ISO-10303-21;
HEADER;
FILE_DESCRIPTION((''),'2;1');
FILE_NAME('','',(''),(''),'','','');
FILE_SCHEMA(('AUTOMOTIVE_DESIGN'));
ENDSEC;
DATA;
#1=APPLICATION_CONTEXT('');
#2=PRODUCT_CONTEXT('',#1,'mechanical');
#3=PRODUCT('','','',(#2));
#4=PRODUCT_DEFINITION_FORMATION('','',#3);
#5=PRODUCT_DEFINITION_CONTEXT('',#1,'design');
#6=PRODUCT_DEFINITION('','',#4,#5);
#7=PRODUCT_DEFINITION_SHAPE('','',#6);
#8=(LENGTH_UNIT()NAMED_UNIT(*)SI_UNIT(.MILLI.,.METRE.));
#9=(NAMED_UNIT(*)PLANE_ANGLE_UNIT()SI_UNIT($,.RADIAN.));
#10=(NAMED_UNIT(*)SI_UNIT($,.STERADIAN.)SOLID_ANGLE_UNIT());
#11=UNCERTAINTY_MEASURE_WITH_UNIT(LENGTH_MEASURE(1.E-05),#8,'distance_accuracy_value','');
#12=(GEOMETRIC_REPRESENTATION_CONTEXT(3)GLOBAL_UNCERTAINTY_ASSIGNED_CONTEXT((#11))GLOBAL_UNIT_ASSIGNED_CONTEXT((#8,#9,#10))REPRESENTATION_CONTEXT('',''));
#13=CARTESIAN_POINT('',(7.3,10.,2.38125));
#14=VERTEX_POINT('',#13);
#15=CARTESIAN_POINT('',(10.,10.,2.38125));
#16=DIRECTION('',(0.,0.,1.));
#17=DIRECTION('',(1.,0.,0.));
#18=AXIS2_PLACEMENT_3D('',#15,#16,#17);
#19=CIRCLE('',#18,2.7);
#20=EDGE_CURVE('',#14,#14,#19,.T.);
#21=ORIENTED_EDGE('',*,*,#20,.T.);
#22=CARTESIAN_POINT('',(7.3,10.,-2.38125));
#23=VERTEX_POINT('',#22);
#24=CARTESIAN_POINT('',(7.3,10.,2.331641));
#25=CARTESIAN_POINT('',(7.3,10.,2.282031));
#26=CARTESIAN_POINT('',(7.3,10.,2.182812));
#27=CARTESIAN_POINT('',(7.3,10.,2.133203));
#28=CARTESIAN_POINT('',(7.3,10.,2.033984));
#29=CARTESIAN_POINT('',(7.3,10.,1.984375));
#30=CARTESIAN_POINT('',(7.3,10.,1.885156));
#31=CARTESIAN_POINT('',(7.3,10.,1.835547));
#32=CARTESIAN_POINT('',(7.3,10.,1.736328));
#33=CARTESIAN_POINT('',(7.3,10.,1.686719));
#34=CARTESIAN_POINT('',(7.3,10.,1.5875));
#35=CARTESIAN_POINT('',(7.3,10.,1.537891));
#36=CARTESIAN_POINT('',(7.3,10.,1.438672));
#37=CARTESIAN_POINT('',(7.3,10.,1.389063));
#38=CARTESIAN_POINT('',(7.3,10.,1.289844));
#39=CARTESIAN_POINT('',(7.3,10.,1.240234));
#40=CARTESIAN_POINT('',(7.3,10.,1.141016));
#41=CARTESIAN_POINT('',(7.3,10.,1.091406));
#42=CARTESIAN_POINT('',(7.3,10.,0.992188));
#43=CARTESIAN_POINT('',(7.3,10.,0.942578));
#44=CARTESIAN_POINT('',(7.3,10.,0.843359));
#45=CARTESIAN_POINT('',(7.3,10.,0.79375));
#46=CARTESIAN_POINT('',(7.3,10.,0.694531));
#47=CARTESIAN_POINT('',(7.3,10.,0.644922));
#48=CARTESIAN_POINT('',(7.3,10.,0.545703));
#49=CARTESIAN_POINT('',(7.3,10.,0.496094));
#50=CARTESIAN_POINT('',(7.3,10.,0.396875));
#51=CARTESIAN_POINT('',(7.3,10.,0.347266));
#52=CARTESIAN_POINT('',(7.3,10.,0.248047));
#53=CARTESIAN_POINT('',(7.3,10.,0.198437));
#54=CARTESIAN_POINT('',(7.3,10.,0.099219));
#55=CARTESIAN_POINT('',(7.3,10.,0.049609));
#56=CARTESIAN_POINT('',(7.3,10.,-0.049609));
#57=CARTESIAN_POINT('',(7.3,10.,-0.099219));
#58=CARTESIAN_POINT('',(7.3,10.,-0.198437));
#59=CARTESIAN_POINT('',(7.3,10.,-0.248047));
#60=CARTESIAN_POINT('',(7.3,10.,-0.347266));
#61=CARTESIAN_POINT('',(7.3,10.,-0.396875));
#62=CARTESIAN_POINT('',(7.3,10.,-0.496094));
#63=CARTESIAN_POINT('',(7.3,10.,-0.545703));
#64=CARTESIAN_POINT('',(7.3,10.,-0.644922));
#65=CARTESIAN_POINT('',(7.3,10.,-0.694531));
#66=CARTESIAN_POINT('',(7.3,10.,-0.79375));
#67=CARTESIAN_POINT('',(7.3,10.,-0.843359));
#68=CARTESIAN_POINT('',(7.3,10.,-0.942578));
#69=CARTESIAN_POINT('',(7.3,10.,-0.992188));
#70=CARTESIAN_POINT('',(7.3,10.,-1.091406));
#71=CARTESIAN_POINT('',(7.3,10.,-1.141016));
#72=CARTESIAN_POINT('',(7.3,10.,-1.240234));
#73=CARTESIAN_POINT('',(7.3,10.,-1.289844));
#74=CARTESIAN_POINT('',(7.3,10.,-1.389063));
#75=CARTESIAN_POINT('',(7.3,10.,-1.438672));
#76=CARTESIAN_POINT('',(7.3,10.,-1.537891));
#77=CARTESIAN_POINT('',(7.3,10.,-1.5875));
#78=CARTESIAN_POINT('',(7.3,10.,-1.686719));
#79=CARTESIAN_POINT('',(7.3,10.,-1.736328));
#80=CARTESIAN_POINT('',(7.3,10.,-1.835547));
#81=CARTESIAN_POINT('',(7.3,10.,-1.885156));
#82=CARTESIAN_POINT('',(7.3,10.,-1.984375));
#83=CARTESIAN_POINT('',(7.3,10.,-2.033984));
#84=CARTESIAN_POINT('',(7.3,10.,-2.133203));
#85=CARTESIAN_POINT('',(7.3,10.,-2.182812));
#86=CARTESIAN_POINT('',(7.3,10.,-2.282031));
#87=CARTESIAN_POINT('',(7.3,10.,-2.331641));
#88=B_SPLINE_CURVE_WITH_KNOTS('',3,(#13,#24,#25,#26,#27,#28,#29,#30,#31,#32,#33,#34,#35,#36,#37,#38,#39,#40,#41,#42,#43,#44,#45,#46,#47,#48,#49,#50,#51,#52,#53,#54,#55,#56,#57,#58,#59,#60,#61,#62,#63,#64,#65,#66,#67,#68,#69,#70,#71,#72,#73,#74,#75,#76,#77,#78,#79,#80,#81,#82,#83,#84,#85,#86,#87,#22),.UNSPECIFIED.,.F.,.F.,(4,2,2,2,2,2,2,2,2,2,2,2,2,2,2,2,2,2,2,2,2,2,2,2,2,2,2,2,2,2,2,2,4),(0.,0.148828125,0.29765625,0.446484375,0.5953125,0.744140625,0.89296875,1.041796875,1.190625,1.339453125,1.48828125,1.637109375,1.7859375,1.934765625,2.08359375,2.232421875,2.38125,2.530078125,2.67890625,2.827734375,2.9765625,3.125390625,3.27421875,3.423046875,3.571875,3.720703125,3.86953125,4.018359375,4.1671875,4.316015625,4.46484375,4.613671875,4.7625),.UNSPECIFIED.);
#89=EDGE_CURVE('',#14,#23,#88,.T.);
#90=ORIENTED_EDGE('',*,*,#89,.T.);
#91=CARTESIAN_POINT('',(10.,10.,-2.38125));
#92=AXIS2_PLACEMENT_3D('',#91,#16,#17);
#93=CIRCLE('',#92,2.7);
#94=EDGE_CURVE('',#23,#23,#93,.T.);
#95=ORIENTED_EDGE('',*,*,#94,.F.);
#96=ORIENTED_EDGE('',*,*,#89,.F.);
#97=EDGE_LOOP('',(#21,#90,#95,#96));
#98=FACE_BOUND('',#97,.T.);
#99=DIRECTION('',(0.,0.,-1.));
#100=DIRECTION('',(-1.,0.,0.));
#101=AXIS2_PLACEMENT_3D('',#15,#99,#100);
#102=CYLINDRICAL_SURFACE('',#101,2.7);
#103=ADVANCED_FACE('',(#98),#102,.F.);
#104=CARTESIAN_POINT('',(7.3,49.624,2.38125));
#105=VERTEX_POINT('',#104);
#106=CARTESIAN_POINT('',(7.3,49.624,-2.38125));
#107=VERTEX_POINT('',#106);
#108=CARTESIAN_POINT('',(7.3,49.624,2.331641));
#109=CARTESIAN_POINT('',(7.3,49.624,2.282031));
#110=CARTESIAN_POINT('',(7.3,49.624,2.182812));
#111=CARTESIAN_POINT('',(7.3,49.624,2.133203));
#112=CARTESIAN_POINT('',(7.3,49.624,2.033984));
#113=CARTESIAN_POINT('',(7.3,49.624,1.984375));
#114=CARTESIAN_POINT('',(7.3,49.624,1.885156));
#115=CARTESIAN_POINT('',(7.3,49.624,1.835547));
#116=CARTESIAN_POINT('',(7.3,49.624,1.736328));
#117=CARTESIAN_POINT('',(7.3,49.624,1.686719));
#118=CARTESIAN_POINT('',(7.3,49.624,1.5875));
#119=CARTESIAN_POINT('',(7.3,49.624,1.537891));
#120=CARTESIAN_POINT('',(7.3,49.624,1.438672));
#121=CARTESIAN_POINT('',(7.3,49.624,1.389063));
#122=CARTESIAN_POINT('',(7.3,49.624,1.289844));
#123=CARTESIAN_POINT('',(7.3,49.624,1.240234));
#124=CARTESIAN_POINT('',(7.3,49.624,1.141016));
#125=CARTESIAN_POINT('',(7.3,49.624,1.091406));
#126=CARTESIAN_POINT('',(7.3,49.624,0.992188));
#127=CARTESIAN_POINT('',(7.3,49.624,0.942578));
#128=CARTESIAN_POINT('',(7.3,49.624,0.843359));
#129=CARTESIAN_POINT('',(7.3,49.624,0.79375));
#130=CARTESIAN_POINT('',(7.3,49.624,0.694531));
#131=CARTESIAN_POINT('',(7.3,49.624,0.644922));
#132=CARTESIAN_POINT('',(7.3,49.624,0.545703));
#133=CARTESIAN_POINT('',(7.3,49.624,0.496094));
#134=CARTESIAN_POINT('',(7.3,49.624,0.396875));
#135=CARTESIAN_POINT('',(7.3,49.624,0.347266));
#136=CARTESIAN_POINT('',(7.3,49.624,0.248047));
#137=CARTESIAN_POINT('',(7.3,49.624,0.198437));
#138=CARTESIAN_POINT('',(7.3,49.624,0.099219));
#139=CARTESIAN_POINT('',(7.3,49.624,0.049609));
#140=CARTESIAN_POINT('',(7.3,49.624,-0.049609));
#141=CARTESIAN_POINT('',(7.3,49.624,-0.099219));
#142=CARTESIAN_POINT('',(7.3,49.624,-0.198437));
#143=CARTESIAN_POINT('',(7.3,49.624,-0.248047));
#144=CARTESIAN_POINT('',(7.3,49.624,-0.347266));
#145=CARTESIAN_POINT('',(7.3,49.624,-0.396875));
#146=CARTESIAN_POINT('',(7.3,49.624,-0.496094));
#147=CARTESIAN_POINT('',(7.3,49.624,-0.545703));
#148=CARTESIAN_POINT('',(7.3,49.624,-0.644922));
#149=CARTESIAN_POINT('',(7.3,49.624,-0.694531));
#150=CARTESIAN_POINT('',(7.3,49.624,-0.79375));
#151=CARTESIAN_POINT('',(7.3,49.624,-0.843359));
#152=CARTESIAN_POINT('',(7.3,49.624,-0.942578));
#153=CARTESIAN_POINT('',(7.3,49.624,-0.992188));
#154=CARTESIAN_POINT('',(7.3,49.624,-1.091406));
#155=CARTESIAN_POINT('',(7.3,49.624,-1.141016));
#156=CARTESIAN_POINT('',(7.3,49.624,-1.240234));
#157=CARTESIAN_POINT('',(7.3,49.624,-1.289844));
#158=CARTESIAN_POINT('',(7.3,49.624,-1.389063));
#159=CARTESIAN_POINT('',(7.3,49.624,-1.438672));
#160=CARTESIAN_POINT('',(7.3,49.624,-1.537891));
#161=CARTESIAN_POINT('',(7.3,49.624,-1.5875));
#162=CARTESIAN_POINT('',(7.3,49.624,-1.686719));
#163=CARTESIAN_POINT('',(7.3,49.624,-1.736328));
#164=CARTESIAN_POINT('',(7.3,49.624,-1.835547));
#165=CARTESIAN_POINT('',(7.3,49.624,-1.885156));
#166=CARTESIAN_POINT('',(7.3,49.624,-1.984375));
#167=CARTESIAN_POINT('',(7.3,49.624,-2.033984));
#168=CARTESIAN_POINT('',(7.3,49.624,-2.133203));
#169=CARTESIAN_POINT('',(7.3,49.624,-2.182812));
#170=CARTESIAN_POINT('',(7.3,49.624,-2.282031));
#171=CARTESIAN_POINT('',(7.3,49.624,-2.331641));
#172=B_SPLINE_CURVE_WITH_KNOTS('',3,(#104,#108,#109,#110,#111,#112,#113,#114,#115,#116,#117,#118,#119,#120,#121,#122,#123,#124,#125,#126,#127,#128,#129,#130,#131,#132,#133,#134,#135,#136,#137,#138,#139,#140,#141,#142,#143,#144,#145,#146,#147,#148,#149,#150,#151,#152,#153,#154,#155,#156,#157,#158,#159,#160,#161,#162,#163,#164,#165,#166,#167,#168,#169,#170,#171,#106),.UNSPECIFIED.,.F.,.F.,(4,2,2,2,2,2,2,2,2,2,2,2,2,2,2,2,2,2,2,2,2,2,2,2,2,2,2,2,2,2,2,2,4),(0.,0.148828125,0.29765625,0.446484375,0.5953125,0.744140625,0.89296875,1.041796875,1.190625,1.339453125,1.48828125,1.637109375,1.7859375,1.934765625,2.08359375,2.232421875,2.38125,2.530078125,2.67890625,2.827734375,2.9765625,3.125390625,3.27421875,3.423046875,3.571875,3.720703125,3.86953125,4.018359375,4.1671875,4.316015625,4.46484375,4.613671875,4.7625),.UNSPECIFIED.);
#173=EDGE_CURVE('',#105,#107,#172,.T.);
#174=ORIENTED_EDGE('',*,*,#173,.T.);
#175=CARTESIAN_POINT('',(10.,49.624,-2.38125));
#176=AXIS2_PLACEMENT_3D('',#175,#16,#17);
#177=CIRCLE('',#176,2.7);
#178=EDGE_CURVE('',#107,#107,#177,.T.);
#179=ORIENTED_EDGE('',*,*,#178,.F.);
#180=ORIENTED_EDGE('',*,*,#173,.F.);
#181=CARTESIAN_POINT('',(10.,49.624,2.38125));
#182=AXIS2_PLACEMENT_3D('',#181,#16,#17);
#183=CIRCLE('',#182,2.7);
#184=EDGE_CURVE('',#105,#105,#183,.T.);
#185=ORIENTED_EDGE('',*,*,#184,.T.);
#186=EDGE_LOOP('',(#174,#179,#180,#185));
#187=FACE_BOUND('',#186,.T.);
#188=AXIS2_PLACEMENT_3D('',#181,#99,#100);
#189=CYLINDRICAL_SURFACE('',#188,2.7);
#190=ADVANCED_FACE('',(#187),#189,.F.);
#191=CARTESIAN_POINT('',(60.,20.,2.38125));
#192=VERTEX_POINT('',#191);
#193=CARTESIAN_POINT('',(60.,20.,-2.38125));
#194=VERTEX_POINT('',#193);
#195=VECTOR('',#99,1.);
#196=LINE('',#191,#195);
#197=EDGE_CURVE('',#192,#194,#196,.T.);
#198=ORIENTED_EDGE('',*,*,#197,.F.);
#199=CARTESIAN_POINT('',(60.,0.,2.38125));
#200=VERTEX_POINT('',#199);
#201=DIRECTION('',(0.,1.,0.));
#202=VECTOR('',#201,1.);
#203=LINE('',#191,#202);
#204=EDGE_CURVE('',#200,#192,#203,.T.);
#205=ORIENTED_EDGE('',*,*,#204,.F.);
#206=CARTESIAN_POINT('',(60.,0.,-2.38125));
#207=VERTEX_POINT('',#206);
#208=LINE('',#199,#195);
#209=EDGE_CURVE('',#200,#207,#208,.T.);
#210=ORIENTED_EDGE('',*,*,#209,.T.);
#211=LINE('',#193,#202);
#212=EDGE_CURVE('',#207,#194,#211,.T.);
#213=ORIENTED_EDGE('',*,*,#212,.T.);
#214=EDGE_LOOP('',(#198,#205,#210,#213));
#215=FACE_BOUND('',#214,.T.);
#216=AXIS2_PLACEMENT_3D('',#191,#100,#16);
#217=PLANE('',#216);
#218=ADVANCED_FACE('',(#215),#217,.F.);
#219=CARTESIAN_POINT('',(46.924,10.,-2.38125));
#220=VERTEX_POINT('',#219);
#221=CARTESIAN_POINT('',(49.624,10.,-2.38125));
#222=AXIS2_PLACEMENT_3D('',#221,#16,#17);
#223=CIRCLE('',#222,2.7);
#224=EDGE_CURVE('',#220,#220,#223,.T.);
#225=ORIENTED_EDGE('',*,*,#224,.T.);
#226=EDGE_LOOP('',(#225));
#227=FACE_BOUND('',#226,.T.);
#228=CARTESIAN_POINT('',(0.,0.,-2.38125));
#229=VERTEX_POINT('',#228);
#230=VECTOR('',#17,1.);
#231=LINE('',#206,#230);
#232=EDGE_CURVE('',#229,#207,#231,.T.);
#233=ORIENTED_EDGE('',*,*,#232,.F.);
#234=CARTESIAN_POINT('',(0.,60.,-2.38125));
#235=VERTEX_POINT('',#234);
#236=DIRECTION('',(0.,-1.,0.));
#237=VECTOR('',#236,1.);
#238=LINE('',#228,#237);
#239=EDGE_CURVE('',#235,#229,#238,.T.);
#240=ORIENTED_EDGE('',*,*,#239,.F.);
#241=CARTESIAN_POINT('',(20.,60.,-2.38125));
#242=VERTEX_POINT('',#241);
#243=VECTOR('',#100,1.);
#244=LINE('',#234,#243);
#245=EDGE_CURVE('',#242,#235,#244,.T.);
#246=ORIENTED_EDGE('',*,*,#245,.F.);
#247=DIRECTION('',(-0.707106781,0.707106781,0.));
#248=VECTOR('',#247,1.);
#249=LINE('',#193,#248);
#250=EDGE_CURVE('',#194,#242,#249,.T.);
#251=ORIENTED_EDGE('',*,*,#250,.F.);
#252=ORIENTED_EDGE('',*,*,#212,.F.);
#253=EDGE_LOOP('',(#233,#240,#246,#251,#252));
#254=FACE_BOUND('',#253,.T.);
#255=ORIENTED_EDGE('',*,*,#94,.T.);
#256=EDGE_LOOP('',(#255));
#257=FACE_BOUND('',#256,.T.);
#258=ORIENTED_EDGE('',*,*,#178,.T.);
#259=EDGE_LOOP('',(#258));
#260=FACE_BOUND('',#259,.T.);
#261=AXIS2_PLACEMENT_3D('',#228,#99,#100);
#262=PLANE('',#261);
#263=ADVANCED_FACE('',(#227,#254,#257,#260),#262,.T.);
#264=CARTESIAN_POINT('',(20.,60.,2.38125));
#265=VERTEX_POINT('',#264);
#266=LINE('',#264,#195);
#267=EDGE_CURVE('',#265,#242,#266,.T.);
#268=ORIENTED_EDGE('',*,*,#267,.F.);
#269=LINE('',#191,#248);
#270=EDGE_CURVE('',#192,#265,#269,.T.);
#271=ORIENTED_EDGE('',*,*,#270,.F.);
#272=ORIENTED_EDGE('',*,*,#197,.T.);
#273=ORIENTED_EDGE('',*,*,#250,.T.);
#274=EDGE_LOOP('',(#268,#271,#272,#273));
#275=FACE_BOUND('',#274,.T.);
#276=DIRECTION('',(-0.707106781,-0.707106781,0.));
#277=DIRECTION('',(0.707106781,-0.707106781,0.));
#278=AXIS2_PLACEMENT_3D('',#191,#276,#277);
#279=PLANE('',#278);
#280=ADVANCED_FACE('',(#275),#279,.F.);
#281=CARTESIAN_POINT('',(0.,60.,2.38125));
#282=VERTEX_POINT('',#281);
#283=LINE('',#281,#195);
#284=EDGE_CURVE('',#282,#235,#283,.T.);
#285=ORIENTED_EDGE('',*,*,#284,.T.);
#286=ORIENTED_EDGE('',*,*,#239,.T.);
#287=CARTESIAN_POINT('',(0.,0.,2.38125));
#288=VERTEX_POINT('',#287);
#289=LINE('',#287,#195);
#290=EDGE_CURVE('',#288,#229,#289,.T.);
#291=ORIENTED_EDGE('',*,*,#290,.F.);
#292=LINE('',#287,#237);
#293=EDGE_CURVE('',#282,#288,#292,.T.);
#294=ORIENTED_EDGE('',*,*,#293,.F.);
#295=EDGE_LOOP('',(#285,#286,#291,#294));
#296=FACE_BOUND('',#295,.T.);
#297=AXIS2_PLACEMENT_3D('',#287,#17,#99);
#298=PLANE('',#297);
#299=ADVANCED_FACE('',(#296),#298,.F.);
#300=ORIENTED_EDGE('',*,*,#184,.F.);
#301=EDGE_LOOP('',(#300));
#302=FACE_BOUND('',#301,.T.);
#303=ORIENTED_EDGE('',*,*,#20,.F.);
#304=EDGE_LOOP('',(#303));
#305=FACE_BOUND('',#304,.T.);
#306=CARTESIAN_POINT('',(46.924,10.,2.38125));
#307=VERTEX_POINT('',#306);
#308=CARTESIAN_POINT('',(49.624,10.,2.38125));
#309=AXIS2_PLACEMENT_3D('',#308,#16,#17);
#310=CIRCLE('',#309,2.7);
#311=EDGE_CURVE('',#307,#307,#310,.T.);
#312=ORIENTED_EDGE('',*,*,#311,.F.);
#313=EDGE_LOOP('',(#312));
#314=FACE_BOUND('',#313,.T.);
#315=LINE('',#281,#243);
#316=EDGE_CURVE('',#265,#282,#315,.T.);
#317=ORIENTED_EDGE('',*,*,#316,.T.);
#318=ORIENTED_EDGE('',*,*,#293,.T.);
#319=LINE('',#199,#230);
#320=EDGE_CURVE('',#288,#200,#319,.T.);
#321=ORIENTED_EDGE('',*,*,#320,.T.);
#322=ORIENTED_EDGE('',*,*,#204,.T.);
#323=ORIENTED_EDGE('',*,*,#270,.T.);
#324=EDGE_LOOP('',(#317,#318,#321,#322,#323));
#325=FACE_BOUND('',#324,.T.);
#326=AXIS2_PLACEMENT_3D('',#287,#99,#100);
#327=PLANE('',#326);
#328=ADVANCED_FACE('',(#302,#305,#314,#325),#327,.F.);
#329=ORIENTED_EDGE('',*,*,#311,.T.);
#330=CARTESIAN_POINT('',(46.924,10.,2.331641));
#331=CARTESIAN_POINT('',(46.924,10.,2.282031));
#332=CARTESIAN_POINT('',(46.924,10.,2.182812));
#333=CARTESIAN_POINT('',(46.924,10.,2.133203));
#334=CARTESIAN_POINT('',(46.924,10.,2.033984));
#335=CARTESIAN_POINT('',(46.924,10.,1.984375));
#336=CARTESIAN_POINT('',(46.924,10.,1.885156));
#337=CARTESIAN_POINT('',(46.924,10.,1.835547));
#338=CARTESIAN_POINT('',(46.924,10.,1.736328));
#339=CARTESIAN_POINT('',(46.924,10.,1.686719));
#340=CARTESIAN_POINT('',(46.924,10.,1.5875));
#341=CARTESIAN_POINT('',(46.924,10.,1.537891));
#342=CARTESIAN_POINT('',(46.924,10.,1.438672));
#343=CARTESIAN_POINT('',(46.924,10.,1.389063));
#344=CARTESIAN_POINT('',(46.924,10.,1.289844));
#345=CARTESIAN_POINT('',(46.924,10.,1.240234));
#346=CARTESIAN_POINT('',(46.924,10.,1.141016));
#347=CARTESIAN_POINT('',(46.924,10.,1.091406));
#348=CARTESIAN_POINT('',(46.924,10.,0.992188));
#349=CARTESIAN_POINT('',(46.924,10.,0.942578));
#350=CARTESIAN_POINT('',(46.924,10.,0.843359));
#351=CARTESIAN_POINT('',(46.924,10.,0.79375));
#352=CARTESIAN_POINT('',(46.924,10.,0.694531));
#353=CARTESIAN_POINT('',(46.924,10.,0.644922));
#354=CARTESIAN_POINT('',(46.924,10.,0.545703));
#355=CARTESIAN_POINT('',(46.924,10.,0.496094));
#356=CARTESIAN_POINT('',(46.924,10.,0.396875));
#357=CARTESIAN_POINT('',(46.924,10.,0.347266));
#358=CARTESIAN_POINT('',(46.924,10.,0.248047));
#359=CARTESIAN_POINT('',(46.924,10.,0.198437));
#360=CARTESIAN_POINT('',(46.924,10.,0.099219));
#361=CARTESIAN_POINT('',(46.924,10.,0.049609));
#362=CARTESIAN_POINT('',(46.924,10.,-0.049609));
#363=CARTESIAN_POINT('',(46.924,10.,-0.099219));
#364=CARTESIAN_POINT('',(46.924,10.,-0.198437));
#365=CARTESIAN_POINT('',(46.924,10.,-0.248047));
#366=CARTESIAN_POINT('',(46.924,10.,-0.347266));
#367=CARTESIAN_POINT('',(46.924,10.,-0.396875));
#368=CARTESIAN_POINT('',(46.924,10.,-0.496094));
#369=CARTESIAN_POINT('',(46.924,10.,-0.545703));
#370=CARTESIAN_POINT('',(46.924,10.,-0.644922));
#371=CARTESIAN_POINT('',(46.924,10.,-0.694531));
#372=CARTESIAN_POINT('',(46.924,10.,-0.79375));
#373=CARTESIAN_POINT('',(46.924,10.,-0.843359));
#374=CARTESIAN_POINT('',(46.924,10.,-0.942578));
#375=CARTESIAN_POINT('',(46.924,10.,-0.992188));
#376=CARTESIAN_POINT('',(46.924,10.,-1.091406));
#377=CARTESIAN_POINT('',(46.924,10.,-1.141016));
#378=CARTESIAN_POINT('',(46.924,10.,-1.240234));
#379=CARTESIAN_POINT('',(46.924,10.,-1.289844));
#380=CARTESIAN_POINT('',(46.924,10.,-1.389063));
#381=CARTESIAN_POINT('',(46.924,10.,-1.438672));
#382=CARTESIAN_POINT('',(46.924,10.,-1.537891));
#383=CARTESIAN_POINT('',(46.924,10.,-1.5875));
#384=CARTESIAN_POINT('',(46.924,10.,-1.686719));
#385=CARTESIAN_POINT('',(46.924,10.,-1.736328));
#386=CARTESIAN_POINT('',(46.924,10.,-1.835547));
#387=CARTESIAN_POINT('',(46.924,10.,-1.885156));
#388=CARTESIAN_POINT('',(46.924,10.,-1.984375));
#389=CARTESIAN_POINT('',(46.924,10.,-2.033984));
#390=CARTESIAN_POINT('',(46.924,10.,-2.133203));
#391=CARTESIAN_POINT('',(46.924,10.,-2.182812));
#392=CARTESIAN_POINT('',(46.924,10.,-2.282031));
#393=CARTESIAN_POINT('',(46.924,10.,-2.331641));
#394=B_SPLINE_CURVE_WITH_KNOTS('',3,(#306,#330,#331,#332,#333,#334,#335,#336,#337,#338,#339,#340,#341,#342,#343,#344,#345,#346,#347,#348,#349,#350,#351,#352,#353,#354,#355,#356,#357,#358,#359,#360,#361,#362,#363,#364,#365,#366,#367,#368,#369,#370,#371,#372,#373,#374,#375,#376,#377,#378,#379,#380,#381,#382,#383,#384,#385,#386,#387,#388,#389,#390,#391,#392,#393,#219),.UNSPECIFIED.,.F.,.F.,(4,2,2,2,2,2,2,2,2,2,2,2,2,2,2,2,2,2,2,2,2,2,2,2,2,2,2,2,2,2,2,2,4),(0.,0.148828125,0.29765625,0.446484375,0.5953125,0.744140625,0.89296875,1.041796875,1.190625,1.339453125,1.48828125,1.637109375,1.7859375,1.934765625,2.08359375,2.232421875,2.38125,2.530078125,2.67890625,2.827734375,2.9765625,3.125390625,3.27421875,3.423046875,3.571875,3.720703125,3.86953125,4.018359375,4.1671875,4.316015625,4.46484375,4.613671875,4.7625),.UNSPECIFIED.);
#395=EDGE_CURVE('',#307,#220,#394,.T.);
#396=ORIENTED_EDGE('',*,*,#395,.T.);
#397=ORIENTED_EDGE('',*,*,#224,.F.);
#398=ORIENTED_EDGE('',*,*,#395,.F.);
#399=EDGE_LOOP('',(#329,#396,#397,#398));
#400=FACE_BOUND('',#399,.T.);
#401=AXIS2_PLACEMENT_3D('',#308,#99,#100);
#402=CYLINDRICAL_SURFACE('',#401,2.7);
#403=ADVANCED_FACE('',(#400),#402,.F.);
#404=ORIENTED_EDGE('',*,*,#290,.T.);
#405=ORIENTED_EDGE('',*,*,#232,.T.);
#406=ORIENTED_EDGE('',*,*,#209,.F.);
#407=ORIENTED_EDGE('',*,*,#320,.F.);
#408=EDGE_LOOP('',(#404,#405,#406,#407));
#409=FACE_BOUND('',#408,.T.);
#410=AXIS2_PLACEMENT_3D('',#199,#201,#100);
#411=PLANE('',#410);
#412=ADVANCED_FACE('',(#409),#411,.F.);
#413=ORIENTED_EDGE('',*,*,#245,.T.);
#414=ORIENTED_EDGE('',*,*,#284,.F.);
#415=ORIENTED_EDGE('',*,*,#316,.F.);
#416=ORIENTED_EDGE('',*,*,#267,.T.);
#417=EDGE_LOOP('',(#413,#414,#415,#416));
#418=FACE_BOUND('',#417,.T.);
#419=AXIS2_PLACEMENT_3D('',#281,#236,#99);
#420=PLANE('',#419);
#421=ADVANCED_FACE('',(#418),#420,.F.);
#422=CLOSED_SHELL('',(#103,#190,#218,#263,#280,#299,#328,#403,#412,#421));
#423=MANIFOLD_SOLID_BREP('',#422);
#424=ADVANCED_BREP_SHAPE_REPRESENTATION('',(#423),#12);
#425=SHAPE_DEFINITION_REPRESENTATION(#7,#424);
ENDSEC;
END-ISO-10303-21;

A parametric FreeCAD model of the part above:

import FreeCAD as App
import Part
import Sketcher
Q = App.Units.Quantity


def add_polygon(sketch, points):
    """Adds a closed chain of lines whose ends are joined by coincident constraints."""
    first, n = sketch.GeometryCount, len(points)
    for a, b in zip(points, points[1:] + points[:1]):
        sketch.addGeometry(Part.LineSegment(App.Vector(*a, 0), App.Vector(*b, 0)), False)
    for i in range(n):
        sketch.addConstraint(Sketcher.Constraint("Coincident", first + i, 2, first + (i + 1) % n, 1))

doc = App.newDocument("Part")
body = doc.addObject("PartDesign::Body", "Body")

# Sketch on XY plane
sketch1 = doc.addObject("Sketcher::SketchObject", "Sketch")
body.addObject(sketch1)
sketch1.AttachmentSupport = (doc.XY_Plane, [""])
sketch1.MapMode = "FlatFace"
add_polygon(sketch1, [(0, 60), (0, 0), (60, 0), (60, 20), (20, 60)])  # lines 0-4
sketch1.addGeometry(Part.Circle(App.Vector(49.6, 10, 0), App.Vector(0, 0, 1), 2.7), False)  # 5
sketch1.addGeometry(Part.Circle(App.Vector(10, 10, 0), App.Vector(0, 0, 1), 2.7), False)  # 6
sketch1.addGeometry(Part.Circle(App.Vector(10, 49.6, 0), App.Vector(0, 0, 1), 2.7), False)  # 7
sketch1.addConstraint([
    Sketcher.Constraint("Vertical", 0),
    Sketcher.Constraint("Horizontal", 1),
    Sketcher.Constraint("Vertical", 2),
    Sketcher.Constraint("Horizontal", 4),
    Sketcher.Constraint("Coincident", 0, 2, -1, 1),
    Sketcher.Constraint("Equal", 5, 6),
    Sketcher.Constraint("Equal", 6, 7),
    Sketcher.Constraint("Horizontal", 5, 3, 6, 3),
    Sketcher.Constraint("Vertical", 6, 3, 7, 3),
    Sketcher.Constraint("Equal", 1, 0),
    Sketcher.Constraint("Equal", 4, 2),
    Sketcher.Constraint("Diameter", 5, Q("5.4 mm")),
    Sketcher.Constraint("DistanceX", 1, 1, 1, 2, Q("60 mm")),
    Sketcher.Constraint("DistanceX", 4, 2, 4, 1, Q("20 mm")),
    Sketcher.Constraint("DistanceY", -1, 1, 5, 3, Q("10 mm")),
    Sketcher.Constraint("DistanceX", -1, 1, 6, 3, Q("10 mm")),
    Sketcher.Constraint("DistanceX", -1, 1, 5, 3, Q("49.624 mm")),
    Sketcher.Constraint("DistanceY", -1, 1, 7, 3, Q("49.624 mm")),
])
pad1 = doc.addObject("PartDesign::Pad", "Pad")
body.addObject(pad1)
pad1.Profile = sketch1
pad1.Length = 4.7625
pad1.Midplane = True

doc.recompute()
